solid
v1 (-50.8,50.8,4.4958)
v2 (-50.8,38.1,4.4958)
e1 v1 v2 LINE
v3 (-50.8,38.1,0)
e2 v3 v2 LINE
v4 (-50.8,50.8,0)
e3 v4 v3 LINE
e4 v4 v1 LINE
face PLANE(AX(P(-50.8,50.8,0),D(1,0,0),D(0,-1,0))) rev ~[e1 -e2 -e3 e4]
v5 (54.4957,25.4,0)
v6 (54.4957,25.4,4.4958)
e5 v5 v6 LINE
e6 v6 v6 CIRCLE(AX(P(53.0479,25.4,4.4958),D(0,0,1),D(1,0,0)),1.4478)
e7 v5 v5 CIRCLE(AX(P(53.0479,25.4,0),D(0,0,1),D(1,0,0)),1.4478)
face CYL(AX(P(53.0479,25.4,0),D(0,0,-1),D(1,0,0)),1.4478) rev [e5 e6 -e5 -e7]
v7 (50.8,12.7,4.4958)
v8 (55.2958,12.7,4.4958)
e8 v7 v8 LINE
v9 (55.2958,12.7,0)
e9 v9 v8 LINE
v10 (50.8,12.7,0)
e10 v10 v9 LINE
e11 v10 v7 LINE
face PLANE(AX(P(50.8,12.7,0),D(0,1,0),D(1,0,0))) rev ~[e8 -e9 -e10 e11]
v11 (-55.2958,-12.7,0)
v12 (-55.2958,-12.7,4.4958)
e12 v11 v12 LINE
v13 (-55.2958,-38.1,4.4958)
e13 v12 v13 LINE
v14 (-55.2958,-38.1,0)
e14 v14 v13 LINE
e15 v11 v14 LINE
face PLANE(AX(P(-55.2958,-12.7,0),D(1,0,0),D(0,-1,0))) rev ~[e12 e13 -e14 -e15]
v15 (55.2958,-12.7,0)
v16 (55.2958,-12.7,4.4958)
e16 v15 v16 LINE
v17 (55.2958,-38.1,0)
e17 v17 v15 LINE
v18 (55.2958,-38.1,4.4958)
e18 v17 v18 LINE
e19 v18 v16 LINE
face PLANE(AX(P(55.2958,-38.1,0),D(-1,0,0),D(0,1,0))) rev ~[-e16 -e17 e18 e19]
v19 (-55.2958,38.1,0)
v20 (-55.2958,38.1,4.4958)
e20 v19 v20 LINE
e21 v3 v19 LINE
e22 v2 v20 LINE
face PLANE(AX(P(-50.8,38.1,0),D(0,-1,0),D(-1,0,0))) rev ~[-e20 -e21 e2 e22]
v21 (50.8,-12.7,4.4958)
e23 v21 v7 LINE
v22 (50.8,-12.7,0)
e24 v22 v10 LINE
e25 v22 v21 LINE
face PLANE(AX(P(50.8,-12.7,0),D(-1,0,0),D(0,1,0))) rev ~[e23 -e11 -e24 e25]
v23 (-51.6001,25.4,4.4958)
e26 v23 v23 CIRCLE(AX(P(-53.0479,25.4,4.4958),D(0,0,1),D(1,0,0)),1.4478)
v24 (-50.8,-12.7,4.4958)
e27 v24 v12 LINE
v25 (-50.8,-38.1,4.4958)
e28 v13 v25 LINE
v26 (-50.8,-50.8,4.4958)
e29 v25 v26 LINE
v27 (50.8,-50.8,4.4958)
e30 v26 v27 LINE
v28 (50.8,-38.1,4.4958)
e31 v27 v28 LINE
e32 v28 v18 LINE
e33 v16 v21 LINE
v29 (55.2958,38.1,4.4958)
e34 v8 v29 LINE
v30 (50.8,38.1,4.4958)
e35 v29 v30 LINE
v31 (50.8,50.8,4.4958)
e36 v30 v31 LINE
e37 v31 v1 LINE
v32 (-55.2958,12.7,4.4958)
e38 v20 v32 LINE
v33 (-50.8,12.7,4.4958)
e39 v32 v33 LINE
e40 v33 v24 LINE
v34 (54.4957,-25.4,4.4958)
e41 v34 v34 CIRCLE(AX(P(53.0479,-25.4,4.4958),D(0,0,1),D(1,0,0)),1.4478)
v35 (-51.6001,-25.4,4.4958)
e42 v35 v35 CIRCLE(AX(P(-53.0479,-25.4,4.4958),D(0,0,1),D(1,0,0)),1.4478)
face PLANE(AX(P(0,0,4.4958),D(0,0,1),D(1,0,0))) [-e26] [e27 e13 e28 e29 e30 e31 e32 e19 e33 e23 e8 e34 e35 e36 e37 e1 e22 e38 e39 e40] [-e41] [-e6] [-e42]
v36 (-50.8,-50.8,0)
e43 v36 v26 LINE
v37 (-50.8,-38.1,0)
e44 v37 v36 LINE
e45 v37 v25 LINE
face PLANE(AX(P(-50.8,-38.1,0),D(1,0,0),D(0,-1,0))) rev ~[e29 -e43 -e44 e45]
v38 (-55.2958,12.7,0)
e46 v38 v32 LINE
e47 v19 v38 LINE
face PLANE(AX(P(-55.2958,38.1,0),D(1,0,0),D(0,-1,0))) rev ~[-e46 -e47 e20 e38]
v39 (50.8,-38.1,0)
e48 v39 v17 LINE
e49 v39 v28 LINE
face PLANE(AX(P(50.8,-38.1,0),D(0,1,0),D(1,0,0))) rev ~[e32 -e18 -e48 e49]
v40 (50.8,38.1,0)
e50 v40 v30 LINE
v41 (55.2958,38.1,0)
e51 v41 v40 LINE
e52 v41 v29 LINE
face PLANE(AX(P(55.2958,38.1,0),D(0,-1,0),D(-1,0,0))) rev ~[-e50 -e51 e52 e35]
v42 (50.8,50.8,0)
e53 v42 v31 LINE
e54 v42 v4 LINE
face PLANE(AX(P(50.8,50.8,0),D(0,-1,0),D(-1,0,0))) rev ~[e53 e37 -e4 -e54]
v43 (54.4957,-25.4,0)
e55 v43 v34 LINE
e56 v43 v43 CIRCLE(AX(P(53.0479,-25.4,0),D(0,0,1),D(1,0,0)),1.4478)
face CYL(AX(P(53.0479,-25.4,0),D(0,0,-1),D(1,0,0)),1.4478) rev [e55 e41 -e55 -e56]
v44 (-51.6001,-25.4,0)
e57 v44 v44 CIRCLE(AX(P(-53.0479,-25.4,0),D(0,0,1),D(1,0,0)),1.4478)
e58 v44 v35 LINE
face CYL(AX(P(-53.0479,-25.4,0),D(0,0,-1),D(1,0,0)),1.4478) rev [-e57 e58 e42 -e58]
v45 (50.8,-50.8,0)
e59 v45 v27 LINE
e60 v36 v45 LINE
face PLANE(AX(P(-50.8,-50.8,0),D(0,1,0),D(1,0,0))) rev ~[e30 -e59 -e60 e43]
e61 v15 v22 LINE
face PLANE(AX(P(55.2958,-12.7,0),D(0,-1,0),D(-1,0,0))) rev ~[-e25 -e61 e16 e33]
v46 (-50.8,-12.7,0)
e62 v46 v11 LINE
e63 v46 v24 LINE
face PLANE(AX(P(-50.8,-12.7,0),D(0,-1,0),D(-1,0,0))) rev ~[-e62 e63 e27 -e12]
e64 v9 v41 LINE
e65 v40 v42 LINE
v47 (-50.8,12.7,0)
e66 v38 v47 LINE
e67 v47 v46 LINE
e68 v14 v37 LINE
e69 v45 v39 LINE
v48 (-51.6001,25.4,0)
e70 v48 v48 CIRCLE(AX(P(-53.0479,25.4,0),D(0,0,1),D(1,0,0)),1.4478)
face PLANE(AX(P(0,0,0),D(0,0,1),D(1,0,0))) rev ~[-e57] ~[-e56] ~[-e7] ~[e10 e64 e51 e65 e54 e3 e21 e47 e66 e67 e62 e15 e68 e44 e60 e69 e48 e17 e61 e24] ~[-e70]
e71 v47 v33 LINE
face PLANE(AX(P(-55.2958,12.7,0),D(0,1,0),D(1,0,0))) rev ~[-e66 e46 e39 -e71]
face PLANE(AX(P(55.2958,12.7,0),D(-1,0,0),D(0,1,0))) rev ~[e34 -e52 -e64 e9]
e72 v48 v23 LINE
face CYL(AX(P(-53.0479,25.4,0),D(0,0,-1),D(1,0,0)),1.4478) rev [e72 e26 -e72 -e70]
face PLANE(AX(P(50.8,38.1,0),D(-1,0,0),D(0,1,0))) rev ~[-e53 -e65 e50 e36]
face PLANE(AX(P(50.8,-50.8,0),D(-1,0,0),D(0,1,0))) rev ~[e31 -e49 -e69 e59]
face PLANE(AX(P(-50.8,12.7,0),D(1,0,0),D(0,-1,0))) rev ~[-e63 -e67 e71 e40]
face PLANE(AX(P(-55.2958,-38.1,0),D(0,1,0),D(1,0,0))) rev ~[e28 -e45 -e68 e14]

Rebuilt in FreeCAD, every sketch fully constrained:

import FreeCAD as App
import Part
import Sketcher
Q = App.Units.Quantity

doc = App.newDocument("Part")
body = doc.addObject("PartDesign::Body", "Body")

# Sketch on XY plane
sketch1 = body.newObject("Sketcher::SketchObject", "Sketch")
sketch1.AttachmentSupport = (doc.getObject("XY_Plane"), [""])
sketch1.MapMode = "FlatFace"
sketch1.addGeometry(Part.LineSegment(App.Vector(50.8, 50.8, 0), App.Vector(-50.8, 50.8, 0)), False)
sketch1.addGeometry(Part.LineSegment(App.Vector(-50.8, 50.8, 0), App.Vector(-50.8, 38.1, 0)), False)
sketch1.addGeometry(Part.LineSegment(App.Vector(-50.8, 38.1, 0), App.Vector(-55.3, 38.1, 0)), False)
sketch1.addGeometry(Part.LineSegment(App.Vector(-55.3, 38.1, 0), App.Vector(-55.3, 12.7, 0)), False)
sketch1.addGeometry(Part.LineSegment(App.Vector(-55.3, 12.7, 0), App.Vector(-50.8, 12.7, 0)), False)
sketch1.addGeometry(Part.LineSegment(App.Vector(-50.8, 12.7, 0), App.Vector(-50.8, -12.7, 0)), False)
sketch1.addGeometry(Part.LineSegment(App.Vector(-50.8, -12.7, 0), App.Vector(-55.3, -12.7, 0)), False)
sketch1.addGeometry(Part.LineSegment(App.Vector(-55.3, -12.7, 0), App.Vector(-55.3, -38.1, 0)), False)
sketch1.addGeometry(Part.LineSegment(App.Vector(-55.3, -38.1, 0), App.Vector(-50.8, -38.1, 0)), False)
sketch1.addGeometry(Part.LineSegment(App.Vector(-50.8, -38.1, 0), App.Vector(-50.8, -50.8, 0)), False)
sketch1.addGeometry(Part.LineSegment(App.Vector(-50.8, -50.8, 0), App.Vector(50.8, -50.8, 0)), False)
sketch1.addGeometry(Part.LineSegment(App.Vector(50.8, -50.8, 0), App.Vector(50.8, -38.1, 0)), False)
sketch1.addGeometry(Part.LineSegment(App.Vector(50.8, -38.1, 0), App.Vector(55.3, -38.1, 0)), False)
sketch1.addGeometry(Part.LineSegment(App.Vector(55.3, -38.1, 0), App.Vector(55.3, -12.7, 0)), False)
sketch1.addGeometry(Part.LineSegment(App.Vector(55.3, -12.7, 0), App.Vector(50.8, -12.7, 0)), False)
sketch1.addGeometry(Part.LineSegment(App.Vector(50.8, -12.7, 0), App.Vector(50.8, 12.7, 0)), False)
sketch1.addGeometry(Part.LineSegment(App.Vector(50.8, 12.7, 0), App.Vector(55.3, 12.7, 0)), False)
sketch1.addGeometry(Part.LineSegment(App.Vector(55.3, 12.7, 0), App.Vector(55.3, 38.1, 0)), False)
sketch1.addGeometry(Part.LineSegment(App.Vector(55.3, 38.1, 0), App.Vector(50.8, 38.1, 0)), False)
sketch1.addGeometry(Part.LineSegment(App.Vector(50.8, 38.1, 0), App.Vector(50.8, 50.8, 0)), False)
sketch1.addGeometry(Part.Circle(App.Vector(-53, -25.4, 0), App.Vector(0, 0, 1), 1.4), False)
sketch1.addGeometry(Part.Circle(App.Vector(53, -25.4, 0), App.Vector(0, 0, 1), 1.4), False)
sketch1.addGeometry(Part.Circle(App.Vector(-53, 25.4, 0), App.Vector(0, 0, 1), 1.4), False)
sketch1.addGeometry(Part.Circle(App.Vector(53, 25.4, 0), App.Vector(0, 0, 1), 1.4), False)
sketch1.addConstraint(Sketcher.Constraint("Coincident", 0, 2, 1, 1))
sketch1.addConstraint(Sketcher.Constraint("Coincident", 1, 2, 2, 1))
sketch1.addConstraint(Sketcher.Constraint("Coincident", 2, 2, 3, 1))
sketch1.addConstraint(Sketcher.Constraint("Coincident", 3, 2, 4, 1))
sketch1.addConstraint(Sketcher.Constraint("Coincident", 4, 2, 5, 1))
sketch1.addConstraint(Sketcher.Constraint("Coincident", 5, 2, 6, 1))
sketch1.addConstraint(Sketcher.Constraint("Coincident", 6, 2, 7, 1))
sketch1.addConstraint(Sketcher.Constraint("Coincident", 7, 2, 8, 1))
sketch1.addConstraint(Sketcher.Constraint("Coincident", 8, 2, 9, 1))
sketch1.addConstraint(Sketcher.Constraint("Coincident", 9, 2, 10, 1))
sketch1.addConstraint(Sketcher.Constraint("Coincident", 10, 2, 11, 1))
sketch1.addConstraint(Sketcher.Constraint("Coincident", 11, 2, 12, 1))
sketch1.addConstraint(Sketcher.Constraint("Coincident", 12, 2, 13, 1))
sketch1.addConstraint(Sketcher.Constraint("Coincident", 13, 2, 14, 1))
sketch1.addConstraint(Sketcher.Constraint("Coincident", 14, 2, 15, 1))
sketch1.addConstraint(Sketcher.Constraint("Coincident", 15, 2, 16, 1))
sketch1.addConstraint(Sketcher.Constraint("Coincident", 16, 2, 17, 1))
sketch1.addConstraint(Sketcher.Constraint("Coincident", 17, 2, 18, 1))
sketch1.addConstraint(Sketcher.Constraint("Coincident", 18, 2, 19, 1))
sketch1.addConstraint(Sketcher.Constraint("Coincident", 19, 2, 0, 1))
sketch1.addConstraint(Sketcher.Constraint("Horizontal", 0))
sketch1.addConstraint(Sketcher.Constraint("Vertical", 1))
sketch1.addConstraint(Sketcher.Constraint("Horizontal", 2))
sketch1.addConstraint(Sketcher.Constraint("Vertical", 3))
sketch1.addConstraint(Sketcher.Constraint("Horizontal", 4))
sketch1.addConstraint(Sketcher.Constraint("Vertical", 5))
sketch1.addConstraint(Sketcher.Constraint("Horizontal", 6))
sketch1.addConstraint(Sketcher.Constraint("Vertical", 7))
sketch1.addConstraint(Sketcher.Constraint("Horizontal", 8))
sketch1.addConstraint(Sketcher.Constraint("Vertical", 9))
sketch1.addConstraint(Sketcher.Constraint("Horizontal", 10))
sketch1.addConstraint(Sketcher.Constraint("Vertical", 11))
sketch1.addConstraint(Sketcher.Constraint("Horizontal", 12))
sketch1.addConstraint(Sketcher.Constraint("Vertical", 13))
sketch1.addConstraint(Sketcher.Constraint("Horizontal", 14))
sketch1.addConstraint(Sketcher.Constraint("Vertical", 15))
sketch1.addConstraint(Sketcher.Constraint("Horizontal", 16))
sketch1.addConstraint(Sketcher.Constraint("Vertical", 17))
sketch1.addConstraint(Sketcher.Constraint("Horizontal", 18))
sketch1.addConstraint(Sketcher.Constraint("Vertical", 19))
sketch1.addConstraint(Sketcher.Constraint("Equal", 20, 21))
sketch1.addConstraint(Sketcher.Constraint("Equal", 21, 22))
sketch1.addConstraint(Sketcher.Constraint("Equal", 22, 23))
sketch1.addConstraint(Sketcher.Constraint("Symmetric", 21, 3, 22, 3, -1, 1))
sketch1.addConstraint(Sketcher.Constraint("Symmetric", 20, 3, 23, 3, -1, 1))
sketch1.addConstraint(Sketcher.Constraint("Symmetric", 0, 2, 10, 2, -1, 1))
sketch1.addConstraint(Sketcher.Constraint("Symmetric", 2, 2, 12, 2, -1, 1))
sketch1.addConstraint(Sketcher.Constraint("Symmetric", 4, 2, 14, 2, -1, 1))
sketch1.addConstraint(Sketcher.Constraint("Symmetric", 6, 2, 16, 2, -1, 1))
sketch1.addConstraint(Sketcher.Constraint("Symmetric", 8, 2, 18, 2, -1, 1))
sketch1.addConstraint(Sketcher.Constraint("Symmetric", 20, 3, 21, 3, -2))
sketch1.addConstraint(Sketcher.Constraint("Symmetric", 8, 2, 11, 2, -2))
sketch1.addConstraint(Sketcher.Constraint("Symmetric", 6, 2, 13, 2, -2))
sketch1.addConstraint(Sketcher.Constraint("Vertical", 1, 2, 4, 2))
sketch1.addConstraint(Sketcher.Constraint("Equal", 3, 5))
sketch1.addConstraint(Sketcher.Constraint("DistanceX", 0, 2, 0, 1, Q("4 in")))
sketch1.addConstraint(Sketcher.Constraint("DistanceY", 3, 2, 3, 1, Q("1 in")))
sketch1.addConstraint(Sketcher.Constraint("Diameter", 20, Q("0.114 in")))
sketch1.addConstraint(Sketcher.Constraint("DistanceY", 1, 2, 1, 1, Q("0.5 in")))
sketch1.addConstraint(Sketcher.Constraint("DistanceY", 20, 3, -1, 1, Q("1 in")))
sketch1.addConstraint(Sketcher.Constraint("DistanceX", 2, 2, 2, 1, Q("0.177 in")))
sketch1.addConstraint(Sketcher.Constraint("DistanceX", 20, 3, 21, 3, Q("4.177 in")))
pad1 = body.newObject("PartDesign::Pad", "Pad")
pad1.Profile = sketch1
pad1.Length = Q("0.177 in")

doc.recompute()
